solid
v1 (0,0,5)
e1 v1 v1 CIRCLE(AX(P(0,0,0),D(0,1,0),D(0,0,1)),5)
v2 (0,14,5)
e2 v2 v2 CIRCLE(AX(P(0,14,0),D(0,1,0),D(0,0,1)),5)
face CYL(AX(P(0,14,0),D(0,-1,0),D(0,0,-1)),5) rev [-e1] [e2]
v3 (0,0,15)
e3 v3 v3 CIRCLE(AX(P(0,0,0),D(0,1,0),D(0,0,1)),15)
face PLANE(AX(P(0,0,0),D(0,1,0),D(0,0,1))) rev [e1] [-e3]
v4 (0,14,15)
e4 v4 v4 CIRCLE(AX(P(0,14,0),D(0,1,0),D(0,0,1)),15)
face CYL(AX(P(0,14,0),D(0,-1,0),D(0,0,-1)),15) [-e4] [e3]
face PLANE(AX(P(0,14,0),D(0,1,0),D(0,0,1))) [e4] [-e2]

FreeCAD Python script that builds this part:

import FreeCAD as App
import Part
import Sketcher

doc = App.newDocument("Part")
body = doc.addObject("PartDesign::Body", "Body")

# Sketch on XZ plane
sketch1 = doc.addObject("Sketcher::SketchObject", "Sketch")
body.addObject(sketch1)
sketch1.AttachmentSupport = (doc.XZ_Plane, [""])
sketch1.MapMode = "FlatFace"
sketch1.addGeometry([
    Part.Circle(App.Vector(0, 0, 0), App.Vector(0, 0, 1), 15),
    Part.Circle(App.Vector(0, 0, 0), App.Vector(0, 0, 1), 5),
], False)
sketch1.addConstraint([
    Sketcher.Constraint("Coincident", 0, 3, -1, 1),
    Sketcher.Constraint("Coincident", 1, 3, -1, 1),
    Sketcher.Constraint("Diameter", 0, 30.0),
    Sketcher.Constraint("Diameter", 1, 10.0),
])
pad1 = doc.addObject("PartDesign::Pad", "Pad")
body.addObject(pad1)
pad1.Profile = sketch1
pad1.Length = 14
pad1.Reversed = True

doc.recompute()
